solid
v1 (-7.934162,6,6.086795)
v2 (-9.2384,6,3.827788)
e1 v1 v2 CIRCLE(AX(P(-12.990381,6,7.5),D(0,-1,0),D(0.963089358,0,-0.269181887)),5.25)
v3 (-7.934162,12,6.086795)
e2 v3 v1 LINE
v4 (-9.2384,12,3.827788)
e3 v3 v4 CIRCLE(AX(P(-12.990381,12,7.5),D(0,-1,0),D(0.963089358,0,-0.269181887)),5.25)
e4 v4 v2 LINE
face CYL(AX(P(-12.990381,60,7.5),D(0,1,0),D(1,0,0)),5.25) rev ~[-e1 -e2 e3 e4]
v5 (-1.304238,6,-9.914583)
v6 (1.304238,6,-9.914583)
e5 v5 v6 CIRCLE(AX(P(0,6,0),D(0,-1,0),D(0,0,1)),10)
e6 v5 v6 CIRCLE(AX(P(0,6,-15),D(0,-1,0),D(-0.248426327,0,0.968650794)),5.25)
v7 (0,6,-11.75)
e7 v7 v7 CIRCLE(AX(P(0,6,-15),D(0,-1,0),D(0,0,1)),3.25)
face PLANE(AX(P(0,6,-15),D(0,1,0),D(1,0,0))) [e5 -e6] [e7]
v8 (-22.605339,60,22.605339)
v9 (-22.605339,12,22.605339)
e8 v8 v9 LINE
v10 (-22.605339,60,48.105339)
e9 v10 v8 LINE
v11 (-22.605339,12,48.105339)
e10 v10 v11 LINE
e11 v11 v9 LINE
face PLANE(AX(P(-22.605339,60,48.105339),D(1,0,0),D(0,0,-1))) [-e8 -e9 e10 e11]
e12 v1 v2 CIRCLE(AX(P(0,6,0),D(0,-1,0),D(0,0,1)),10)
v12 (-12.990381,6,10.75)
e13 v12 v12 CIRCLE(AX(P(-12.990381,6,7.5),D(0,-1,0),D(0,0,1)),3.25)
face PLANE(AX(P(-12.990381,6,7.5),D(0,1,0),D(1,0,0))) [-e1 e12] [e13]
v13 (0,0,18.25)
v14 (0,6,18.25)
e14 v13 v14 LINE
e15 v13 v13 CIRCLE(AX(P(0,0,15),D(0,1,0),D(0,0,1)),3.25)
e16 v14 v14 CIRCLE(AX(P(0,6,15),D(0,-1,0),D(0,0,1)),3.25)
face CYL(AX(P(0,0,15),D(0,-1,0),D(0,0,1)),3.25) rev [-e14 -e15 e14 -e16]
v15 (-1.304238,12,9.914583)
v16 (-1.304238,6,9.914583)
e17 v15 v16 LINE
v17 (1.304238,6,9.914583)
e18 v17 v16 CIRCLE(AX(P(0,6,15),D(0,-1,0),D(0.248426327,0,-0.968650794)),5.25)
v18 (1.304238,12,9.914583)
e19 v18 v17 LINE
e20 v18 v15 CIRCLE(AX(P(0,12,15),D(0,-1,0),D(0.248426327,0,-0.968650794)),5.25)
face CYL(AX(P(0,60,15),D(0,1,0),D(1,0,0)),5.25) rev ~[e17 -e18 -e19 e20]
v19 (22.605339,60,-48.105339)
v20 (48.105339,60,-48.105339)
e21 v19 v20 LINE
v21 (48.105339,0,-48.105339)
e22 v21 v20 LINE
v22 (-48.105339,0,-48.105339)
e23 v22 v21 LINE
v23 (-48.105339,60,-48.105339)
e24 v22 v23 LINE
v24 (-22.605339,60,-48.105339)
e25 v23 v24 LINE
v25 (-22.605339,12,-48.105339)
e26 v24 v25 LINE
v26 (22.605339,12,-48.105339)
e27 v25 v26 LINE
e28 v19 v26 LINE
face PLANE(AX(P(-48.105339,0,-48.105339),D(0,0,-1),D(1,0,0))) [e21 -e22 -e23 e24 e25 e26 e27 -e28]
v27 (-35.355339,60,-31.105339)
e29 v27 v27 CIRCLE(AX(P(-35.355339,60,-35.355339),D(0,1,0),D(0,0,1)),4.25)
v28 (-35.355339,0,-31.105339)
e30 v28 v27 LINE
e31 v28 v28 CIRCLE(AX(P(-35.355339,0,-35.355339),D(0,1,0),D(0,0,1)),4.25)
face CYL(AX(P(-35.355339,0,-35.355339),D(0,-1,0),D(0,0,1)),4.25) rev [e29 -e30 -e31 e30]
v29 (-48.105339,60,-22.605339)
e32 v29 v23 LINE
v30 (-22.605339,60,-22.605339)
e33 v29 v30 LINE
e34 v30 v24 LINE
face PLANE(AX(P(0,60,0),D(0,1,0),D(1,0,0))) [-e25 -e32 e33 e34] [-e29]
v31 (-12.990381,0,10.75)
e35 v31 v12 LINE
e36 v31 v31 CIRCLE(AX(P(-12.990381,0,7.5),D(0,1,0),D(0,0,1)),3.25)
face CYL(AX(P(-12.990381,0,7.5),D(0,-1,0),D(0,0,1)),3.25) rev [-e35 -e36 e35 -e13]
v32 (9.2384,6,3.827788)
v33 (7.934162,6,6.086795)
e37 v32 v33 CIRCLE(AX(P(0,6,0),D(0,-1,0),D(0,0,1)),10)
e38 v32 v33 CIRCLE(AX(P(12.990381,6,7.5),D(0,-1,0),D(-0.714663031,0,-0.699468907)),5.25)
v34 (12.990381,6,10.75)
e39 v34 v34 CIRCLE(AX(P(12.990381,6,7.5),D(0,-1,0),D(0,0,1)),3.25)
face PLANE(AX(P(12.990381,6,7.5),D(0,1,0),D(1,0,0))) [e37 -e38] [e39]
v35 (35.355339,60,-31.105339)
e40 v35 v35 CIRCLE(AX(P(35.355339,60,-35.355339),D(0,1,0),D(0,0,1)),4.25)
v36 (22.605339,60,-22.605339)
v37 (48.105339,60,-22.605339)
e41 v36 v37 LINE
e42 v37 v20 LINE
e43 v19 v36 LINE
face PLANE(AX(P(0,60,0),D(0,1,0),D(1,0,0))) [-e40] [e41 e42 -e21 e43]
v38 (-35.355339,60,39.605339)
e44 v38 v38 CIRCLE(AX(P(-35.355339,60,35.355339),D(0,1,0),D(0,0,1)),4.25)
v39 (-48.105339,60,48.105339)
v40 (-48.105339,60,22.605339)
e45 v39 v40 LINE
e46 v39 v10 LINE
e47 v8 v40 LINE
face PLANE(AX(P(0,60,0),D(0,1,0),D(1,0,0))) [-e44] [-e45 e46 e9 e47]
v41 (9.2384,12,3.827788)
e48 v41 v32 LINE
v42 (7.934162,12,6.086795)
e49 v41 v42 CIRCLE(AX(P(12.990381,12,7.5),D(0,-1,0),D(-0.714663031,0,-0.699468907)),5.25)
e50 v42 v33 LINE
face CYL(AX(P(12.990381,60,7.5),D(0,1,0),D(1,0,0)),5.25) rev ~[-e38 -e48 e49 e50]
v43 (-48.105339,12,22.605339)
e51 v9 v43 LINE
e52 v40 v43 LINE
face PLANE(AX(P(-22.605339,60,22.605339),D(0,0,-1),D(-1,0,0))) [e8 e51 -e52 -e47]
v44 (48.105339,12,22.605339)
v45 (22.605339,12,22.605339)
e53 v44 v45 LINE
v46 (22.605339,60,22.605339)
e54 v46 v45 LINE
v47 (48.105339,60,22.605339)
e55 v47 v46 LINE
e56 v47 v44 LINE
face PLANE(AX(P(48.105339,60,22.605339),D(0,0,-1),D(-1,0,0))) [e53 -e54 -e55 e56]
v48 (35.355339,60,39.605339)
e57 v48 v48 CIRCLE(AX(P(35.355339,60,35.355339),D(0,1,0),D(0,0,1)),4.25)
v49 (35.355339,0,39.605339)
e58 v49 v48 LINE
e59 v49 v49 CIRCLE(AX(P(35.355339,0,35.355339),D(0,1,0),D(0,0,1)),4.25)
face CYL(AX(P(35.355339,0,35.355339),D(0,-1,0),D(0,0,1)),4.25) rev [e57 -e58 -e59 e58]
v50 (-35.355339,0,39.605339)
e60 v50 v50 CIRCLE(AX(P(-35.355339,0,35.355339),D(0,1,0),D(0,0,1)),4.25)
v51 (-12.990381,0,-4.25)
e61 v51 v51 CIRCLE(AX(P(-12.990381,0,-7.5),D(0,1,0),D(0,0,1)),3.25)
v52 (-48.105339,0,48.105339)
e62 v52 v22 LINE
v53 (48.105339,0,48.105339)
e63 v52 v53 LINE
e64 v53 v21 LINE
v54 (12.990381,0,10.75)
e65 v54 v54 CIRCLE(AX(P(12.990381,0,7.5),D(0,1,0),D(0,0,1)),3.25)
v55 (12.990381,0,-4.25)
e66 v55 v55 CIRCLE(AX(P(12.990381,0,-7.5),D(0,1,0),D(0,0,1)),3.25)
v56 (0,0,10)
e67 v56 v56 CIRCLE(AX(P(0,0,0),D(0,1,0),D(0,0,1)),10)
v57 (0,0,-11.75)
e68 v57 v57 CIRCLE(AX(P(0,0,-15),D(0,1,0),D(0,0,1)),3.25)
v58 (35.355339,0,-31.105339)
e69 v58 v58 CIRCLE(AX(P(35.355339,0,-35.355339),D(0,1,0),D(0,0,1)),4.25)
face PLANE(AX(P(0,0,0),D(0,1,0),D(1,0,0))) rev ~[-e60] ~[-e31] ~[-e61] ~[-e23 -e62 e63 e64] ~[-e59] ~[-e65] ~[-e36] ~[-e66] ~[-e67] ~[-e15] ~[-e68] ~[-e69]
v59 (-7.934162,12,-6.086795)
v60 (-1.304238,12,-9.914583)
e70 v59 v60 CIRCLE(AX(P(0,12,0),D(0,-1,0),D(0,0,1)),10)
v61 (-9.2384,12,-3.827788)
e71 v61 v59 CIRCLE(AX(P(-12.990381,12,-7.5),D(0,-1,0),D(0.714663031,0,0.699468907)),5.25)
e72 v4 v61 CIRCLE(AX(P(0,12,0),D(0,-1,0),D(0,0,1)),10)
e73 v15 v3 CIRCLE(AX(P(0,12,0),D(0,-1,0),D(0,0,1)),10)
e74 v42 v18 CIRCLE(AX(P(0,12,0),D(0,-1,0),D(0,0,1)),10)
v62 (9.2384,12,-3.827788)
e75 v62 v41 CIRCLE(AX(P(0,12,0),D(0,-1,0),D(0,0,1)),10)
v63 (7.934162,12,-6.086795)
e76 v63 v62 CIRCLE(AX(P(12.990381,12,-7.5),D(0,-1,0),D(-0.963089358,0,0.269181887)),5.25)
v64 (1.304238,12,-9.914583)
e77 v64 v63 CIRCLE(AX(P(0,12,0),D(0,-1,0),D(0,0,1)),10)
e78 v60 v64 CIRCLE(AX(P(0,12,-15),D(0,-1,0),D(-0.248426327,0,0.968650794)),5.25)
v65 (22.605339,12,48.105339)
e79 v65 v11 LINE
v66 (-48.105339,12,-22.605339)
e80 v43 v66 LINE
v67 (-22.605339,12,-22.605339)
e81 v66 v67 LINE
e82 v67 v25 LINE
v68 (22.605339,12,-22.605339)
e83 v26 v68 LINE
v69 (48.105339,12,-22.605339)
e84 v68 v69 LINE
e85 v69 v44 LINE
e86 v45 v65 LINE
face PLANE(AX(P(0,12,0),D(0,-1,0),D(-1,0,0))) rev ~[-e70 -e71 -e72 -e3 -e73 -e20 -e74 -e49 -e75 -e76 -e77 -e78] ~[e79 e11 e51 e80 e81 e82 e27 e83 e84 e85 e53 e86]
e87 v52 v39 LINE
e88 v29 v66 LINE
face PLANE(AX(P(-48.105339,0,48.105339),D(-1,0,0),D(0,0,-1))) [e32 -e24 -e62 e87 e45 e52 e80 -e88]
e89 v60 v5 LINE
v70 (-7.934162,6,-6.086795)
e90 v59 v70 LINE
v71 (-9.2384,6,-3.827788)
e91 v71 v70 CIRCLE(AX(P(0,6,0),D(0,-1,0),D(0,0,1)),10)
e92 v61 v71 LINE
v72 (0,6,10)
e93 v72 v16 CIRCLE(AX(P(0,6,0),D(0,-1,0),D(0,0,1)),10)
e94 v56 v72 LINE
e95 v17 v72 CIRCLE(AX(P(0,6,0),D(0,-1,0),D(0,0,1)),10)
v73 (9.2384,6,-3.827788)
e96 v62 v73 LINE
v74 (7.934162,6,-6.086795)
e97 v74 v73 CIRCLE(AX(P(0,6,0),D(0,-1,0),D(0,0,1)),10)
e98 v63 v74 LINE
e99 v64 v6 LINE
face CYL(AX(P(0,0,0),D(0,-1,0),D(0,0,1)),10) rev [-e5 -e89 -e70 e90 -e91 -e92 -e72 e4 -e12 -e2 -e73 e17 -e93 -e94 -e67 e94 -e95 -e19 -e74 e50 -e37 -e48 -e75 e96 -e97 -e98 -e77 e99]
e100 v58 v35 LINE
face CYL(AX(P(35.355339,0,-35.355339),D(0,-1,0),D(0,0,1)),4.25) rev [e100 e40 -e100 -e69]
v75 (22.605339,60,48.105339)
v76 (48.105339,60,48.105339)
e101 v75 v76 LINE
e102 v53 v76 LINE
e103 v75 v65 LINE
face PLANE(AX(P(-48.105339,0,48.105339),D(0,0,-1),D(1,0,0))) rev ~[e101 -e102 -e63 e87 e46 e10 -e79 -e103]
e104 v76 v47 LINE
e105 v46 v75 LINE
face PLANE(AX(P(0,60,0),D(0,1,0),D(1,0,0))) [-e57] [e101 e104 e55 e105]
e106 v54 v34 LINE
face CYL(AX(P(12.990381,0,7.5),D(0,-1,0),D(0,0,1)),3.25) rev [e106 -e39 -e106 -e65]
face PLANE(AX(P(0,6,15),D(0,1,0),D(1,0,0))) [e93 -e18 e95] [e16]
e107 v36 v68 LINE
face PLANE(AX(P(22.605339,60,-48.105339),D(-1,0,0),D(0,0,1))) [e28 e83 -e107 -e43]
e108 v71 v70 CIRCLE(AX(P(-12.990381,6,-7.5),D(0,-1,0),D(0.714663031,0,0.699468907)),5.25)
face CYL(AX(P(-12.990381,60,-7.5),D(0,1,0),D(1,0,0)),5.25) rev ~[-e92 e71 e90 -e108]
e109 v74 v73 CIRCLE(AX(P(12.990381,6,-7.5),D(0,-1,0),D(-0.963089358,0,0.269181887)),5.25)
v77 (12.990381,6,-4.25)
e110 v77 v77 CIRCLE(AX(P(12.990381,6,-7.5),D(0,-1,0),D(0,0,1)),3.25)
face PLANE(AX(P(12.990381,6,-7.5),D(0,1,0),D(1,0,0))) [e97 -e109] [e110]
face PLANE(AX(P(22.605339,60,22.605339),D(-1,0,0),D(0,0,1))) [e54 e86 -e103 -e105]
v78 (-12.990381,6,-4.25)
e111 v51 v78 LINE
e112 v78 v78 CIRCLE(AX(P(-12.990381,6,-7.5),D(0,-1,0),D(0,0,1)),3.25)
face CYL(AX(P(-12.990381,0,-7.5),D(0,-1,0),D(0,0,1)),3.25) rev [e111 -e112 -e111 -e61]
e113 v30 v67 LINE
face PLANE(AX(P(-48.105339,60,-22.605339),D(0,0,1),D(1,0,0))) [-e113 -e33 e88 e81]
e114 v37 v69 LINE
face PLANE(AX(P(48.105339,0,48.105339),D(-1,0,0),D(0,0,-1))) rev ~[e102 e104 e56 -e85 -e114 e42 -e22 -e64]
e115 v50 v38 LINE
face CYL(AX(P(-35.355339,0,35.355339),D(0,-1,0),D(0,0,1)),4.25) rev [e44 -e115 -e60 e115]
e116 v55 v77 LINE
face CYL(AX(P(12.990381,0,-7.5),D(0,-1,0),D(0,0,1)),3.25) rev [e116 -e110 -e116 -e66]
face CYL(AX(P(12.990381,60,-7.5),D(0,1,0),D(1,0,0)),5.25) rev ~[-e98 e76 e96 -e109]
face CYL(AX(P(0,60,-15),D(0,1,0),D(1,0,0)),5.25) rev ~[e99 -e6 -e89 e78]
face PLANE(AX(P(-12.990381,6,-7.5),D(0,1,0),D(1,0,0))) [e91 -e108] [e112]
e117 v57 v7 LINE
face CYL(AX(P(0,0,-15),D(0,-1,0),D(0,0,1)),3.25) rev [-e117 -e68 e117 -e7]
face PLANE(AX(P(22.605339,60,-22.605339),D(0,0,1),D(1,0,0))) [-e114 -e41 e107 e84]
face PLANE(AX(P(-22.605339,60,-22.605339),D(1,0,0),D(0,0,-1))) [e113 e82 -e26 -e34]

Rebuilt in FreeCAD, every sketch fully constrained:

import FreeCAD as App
import Part
import Sketcher

V = App.Vector


def add_polygon(sketch, points):
    """Adds a closed chain of lines whose ends are joined by coincident constraints."""
    first, n = sketch.GeometryCount, len(points)
    for a, b in zip(points, points[1:] + points[:1]):
        sketch.addGeometry(Part.LineSegment(App.Vector(*a, 0), App.Vector(*b, 0)), False)
    for i in range(n):
        sketch.addConstraint(Sketcher.Constraint("Coincident", first + i, 2, first + (i + 1) % n, 1))

doc = App.newDocument("Part")
body = doc.addObject("PartDesign::Body", "Body")

# Sketch on XZ plane
sketch1 = body.newObject("Sketcher::SketchObject", "Sketch")
sketch1.AttachmentSupport = (doc.getObject("XZ_Plane"), [""])
sketch1.MapMode = "FlatFace"
add_polygon(sketch1, [(-48.105339, -48.105339), (-48.105339, 48.105339), (48.105339, 48.105339), (48.105339, -48.105339)])  # lines 0-3
sketch1.addGeometry(Part.Circle(V(-35.355339, 35.355339, 0), V(0, 0, 1), 4.25), False)  # 4
sketch1.addGeometry(Part.Circle(V(-12.990381, 7.5, 0), V(0, 0, 1), 3.25), False)  # 5
sketch1.addGeometry(Part.Circle(V(35.355339, 35.355339, 0), V(0, 0, 1), 4.25), False)  # 6
sketch1.addGeometry(Part.Circle(V(0, 15, 0), V(0, 0, 1), 3.25), False)  # 7
sketch1.addGeometry(Part.Circle(V(12.990381, 7.5, 0), V(0, 0, 1), 3.25), False)  # 8
sketch1.addGeometry(Part.Circle(V(-12.990381, -7.5, 0), V(0, 0, 1), 3.25), False)  # 9
sketch1.addGeometry(Part.Circle(V(-35.355339, -35.355339, 0), V(0, 0, 1), 4.25), False)  # 10
sketch1.addGeometry(Part.Circle(V(0, 0, 0), V(0, 0, 1), 10), False)  # 11
sketch1.addGeometry(Part.Circle(V(12.990381, -7.5, 0), V(0, 0, 1), 3.25), False)  # 12
sketch1.addGeometry(Part.Circle(V(0, -15, 0), V(0, 0, 1), 3.25), False)  # 13
sketch1.addGeometry(Part.Circle(V(35.355339, -35.355339, 0), V(0, 0, 1), 4.25), False)  # 14
sketch1.addConstraint([
    Sketcher.Constraint("Vertical", 0),
    Sketcher.Constraint("Horizontal", 1),
    Sketcher.Constraint("Vertical", 2),
    Sketcher.Constraint("Horizontal", 3),
    Sketcher.Constraint("Coincident", 11, 3, -1, 1),
    Sketcher.Constraint("Equal", 4, 6),
    Sketcher.Constraint("Equal", 5, 7),
    Sketcher.Constraint("Equal", 7, 8),
    Sketcher.Constraint("Equal", 8, 9),
    Sketcher.Constraint("Equal", 6, 10),
    Sketcher.Constraint("Equal", 9, 12),
    Sketcher.Constraint("Equal", 12, 13),
    Sketcher.Constraint("Equal", 10, 14),
    Sketcher.Constraint("Symmetric", 8, 3, 9, 3, -1, 1),
    Sketcher.Constraint("Symmetric", 6, 3, 10, 3, -1, 1),
    Sketcher.Constraint("Symmetric", 5, 3, 12, 3, -1, 1),
    Sketcher.Constraint("Symmetric", 7, 3, 13, 3, -1, 1),
    Sketcher.Constraint("Symmetric", 4, 3, 14, 3, -1, 1),
    Sketcher.Constraint("Symmetric", 0, 2, 2, 2, -1, 1),
    Sketcher.Constraint("Symmetric", 4, 3, 6, 3, -2),
    Sketcher.Constraint("Symmetric", 5, 3, 8, 3, -2),
    Sketcher.Constraint("PointOnObject", 7, 3, -2),
    Sketcher.Constraint("Equal", 3, 0),
    Sketcher.Constraint("Diameter", 11, 20.0),
    Sketcher.Constraint("Diameter", 4, 8.5),
    Sketcher.Constraint("Diameter", 5, 6.5),
    Sketcher.Constraint("DistanceY", -1, 1, 7, 3, 15.0),
    Sketcher.Constraint("DistanceY", 9, 3, 5, 3, 15.0),
    Sketcher.Constraint("DistanceX", 0, 2, 4, 3, 12.75),
    Sketcher.Constraint("DistanceY", 4, 3, 0, 2, 12.75),
    Sketcher.Constraint("DistanceX", 1, 1, 1, 2, 96.210678),
    Sketcher.Constraint("DistanceX", 5, 3, -1, 1, 12.990381),
])
pad1 = body.newObject("PartDesign::Pad", "Pad")
pad1.Profile = sketch1
pad1.Length = 60
pad1.Reversed = True

# Sketch on XZ plane
sketch2 = body.newObject("Sketcher::SketchObject", "Sketch001")
sketch2.AttachmentSupport = (doc.getObject("XZ_Plane"), [""])
sketch2.MapMode = "FlatFace"
sketch2.AttachmentOffset = App.Placement(V(0, 0, -60), App.Rotation())
add_polygon(sketch2, [(22.605339, -48.105339), (-22.605339, -48.105339), (-22.605339, -22.605339), (-48.105339, -22.605339), (-48.105339, 22.605339), (-22.605339, 22.605339), (-22.605339, 48.105339), (22.605339, 48.105339), (22.605339, 22.605339), (48.105339, 22.605339), (48.105339, -22.605339), (22.605339, -22.605339)])  # lines 0-11
sketch2.addConstraint([
    Sketcher.Constraint("Horizontal", 0),
    Sketcher.Constraint("Vertical", 1),
    Sketcher.Constraint("Horizontal", 2),
    Sketcher.Constraint("Vertical", 3),
    Sketcher.Constraint("Horizontal", 4),
    Sketcher.Constraint("Vertical", 5),
    Sketcher.Constraint("Horizontal", 6),
    Sketcher.Constraint("Vertical", 7),
    Sketcher.Constraint("Horizontal", 8),
    Sketcher.Constraint("Vertical", 9),
    Sketcher.Constraint("Horizontal", 10),
    Sketcher.Constraint("Vertical", 11),
    Sketcher.Constraint("Symmetric", 0, 2, 6, 2, -1, 1),
    Sketcher.Constraint("Symmetric", 2, 2, 8, 2, -1, 1),
    Sketcher.Constraint("Symmetric", 4, 2, 10, 2, -1, 1),
    Sketcher.Constraint("Symmetric", 4, 2, 7, 2, -2),
    Sketcher.Constraint("Equal", 10, 1),
    Sketcher.Constraint("Equal", 6, 3),
    Sketcher.Constraint("DistanceX", 2, 2, 2, 1, 25.5),
    Sketcher.Constraint("DistanceX", 0, 2, 0, 1, 45.210678),
])
pocket1 = body.newObject("PartDesign::Pocket", "Pocket")
pocket1.Profile = sketch2
pocket1.Length = 48
pocket1.Reversed = True

# Sketch on XZ plane
sketch3 = body.newObject("Sketcher::SketchObject", "Sketch002")
sketch3.AttachmentSupport = (doc.getObject("XZ_Plane"), [""])
sketch3.MapMode = "FlatFace"
sketch3.AttachmentOffset = App.Placement(V(0, 0, -60), App.Rotation())
sketch3.addGeometry([
    Part.Circle(V(-12.990381, -7.5, 0), V(0, 0, 1), 5.25),  # 0
    Part.Circle(V(0, -15, 0), V(0, 0, 1), 5.25),  # 1
    Part.Circle(V(12.990381, -7.5, 0), V(0, 0, 1), 5.25),  # 2
    Part.Circle(V(12.990381, 7.5, 0), V(0, 0, 1), 5.25),  # 3
    Part.Circle(V(0, 15, 0), V(0, 0, 1), 5.25),  # 4
    Part.Circle(V(-12.990381, 7.5, 0), V(0, 0, 1), 5.25),  # 5
], False)
sketch3.addConstraint([
    Sketcher.Constraint("Equal", 0, 1),
    Sketcher.Constraint("Equal", 1, 2),
    Sketcher.Constraint("Equal", 2, 3),
    Sketcher.Constraint("Equal", 3, 4),
    Sketcher.Constraint("Equal", 4, 5),
    Sketcher.Constraint("Symmetric", 0, 3, 3, 3, -1, 1),
    Sketcher.Constraint("Symmetric", 1, 3, 4, 3, -1, 1),
    Sketcher.Constraint("Symmetric", 2, 3, 5, 3, -1, 1),
    Sketcher.Constraint("Symmetric", 0, 3, 2, 3, -2),
    Sketcher.Constraint("PointOnObject", 1, 3, -2),
    Sketcher.Constraint("Diameter", 0, 10.5),
    Sketcher.Constraint("DistanceY", 1, 3, -1, 1, 15.0),
    Sketcher.Constraint("DistanceY", 2, 3, 3, 3, 15.0),
    Sketcher.Constraint("DistanceX", 0, 3, -1, 1, 12.990381),
])
pocket2 = body.newObject("PartDesign::Pocket", "Pocket001")
pocket2.Profile = sketch3
pocket2.Length = 54
pocket2.Reversed = True

doc.recompute()
